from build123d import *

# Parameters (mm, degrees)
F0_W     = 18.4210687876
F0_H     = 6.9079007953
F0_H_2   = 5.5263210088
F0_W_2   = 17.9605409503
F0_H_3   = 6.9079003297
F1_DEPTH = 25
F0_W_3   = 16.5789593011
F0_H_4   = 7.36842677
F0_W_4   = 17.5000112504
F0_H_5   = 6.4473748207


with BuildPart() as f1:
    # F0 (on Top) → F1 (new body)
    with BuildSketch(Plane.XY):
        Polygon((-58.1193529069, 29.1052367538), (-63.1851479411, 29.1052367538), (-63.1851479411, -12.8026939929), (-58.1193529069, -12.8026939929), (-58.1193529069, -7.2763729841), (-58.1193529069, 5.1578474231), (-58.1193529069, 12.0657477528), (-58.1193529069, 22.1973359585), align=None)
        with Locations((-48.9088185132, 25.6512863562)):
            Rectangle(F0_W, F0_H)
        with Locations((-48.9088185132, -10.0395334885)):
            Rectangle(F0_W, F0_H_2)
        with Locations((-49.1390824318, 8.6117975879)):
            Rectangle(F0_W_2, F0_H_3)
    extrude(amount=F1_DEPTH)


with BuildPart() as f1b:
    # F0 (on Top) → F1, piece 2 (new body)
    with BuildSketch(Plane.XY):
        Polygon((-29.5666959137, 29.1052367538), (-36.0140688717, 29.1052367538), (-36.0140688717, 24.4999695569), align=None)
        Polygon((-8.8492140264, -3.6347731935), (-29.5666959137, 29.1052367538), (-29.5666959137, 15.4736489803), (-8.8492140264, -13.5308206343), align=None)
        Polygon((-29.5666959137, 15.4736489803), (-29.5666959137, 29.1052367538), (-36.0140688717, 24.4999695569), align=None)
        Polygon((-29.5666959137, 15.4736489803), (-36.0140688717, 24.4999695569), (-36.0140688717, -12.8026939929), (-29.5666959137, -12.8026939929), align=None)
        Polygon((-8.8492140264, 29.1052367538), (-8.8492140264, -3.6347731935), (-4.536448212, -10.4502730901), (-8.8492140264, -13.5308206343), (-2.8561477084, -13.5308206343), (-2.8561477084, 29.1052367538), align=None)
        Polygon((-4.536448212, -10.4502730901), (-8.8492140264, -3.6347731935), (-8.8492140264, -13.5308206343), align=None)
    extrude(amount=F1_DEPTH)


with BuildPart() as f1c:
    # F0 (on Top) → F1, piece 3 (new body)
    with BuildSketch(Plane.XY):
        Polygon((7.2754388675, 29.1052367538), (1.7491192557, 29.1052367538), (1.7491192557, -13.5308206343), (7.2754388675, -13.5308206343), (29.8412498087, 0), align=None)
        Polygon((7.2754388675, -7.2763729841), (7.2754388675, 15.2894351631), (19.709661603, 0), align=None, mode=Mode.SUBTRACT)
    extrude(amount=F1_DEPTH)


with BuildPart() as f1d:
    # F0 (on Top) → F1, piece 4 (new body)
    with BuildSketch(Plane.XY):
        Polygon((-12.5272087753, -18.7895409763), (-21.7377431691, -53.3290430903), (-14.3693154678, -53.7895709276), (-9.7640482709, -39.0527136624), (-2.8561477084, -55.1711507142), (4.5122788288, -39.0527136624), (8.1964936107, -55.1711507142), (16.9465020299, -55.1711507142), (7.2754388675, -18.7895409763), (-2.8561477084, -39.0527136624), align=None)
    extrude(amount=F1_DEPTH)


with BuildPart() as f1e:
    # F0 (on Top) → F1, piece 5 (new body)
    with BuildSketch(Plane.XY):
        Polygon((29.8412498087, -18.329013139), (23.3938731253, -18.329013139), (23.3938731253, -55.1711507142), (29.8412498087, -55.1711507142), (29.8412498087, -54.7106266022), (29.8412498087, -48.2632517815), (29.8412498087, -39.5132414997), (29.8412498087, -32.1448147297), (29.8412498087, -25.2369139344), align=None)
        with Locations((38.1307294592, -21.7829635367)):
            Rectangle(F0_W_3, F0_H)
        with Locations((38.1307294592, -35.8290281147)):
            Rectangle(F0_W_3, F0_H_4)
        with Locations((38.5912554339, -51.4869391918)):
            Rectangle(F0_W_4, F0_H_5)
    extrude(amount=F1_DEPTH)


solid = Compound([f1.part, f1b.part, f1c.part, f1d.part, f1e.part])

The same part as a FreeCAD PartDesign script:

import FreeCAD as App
import Part
import Sketcher

V = App.Vector
Q = App.Units.Quantity


def add_polygon(sketch, points):
    """Adds a closed chain of lines whose ends are joined by coincident constraints."""
    first, n = sketch.GeometryCount, len(points)
    for a, b in zip(points, points[1:] + points[:1]):
        sketch.addGeometry(Part.LineSegment(App.Vector(*a, 0), App.Vector(*b, 0)), False)
    for i in range(n):
        sketch.addConstraint(Sketcher.Constraint("Coincident", first + i, 2, first + (i + 1) % n, 1))

doc = App.newDocument("Part")
body = doc.addObject("PartDesign::Body", "Body")

# Sketch on XY plane
sketch1 = doc.addObject("Sketcher::SketchObject", "Sketch")
body.addObject(sketch1)
sketch1.AttachmentSupport = (doc.XY_Plane, [""])
sketch1.MapMode = "FlatFace"
add_polygon(sketch1, [(-58.119353, 29.105237), (-63.185148, 29.105237), (-63.185148, -12.802694), (-39.698284, -12.802694), (-39.698284, -7.276373), (-58.119353, -7.276373), (-58.119353, 5.157847), (-40.158812, 5.157847), (-40.158812, 12.065748), (-58.119353, 12.065748), (-58.119353, 22.197336), (-39.698284, 22.197336), (-39.698284, 29.105237)])  # lines 0-12
sketch1.addConstraint(Sketcher.Constraint("Horizontal", 0))
sketch1.addConstraint(Sketcher.Constraint("Vertical", 1))
sketch1.addConstraint(Sketcher.Constraint("Horizontal", 2))
sketch1.addConstraint(Sketcher.Constraint("Vertical", 3))
sketch1.addConstraint(Sketcher.Constraint("Horizontal", 4))
sketch1.addConstraint(Sketcher.Constraint("Vertical", 5))
sketch1.addConstraint(Sketcher.Constraint("Horizontal", 6))
sketch1.addConstraint(Sketcher.Constraint("Vertical", 7))
sketch1.addConstraint(Sketcher.Constraint("Horizontal", 8))
sketch1.addConstraint(Sketcher.Constraint("Vertical", 9))
sketch1.addConstraint(Sketcher.Constraint("Horizontal", 10))
sketch1.addConstraint(Sketcher.Constraint("Vertical", 11))
sketch1.addConstraint(Sketcher.Constraint("Horizontal", 12))
sketch1.addConstraint(Sketcher.Constraint("Vertical", 5, 2, 8, 2))
sketch1.addConstraint(Sketcher.Constraint("Vertical", 3, 2, 10, 2))
sketch1.addConstraint(Sketcher.Constraint("Vertical", 9, 2, 12, 2))
sketch1.addConstraint(Sketcher.Constraint("Equal", 7, 11))
sketch1.addConstraint(Sketcher.Constraint("DistanceY", 7, 1, 7, 2, Q("6.9079 mm")))
sketch1.addConstraint(Sketcher.Constraint("DistanceX", 4, 2, 4, 1, Q("18.421069 mm")))
sketch1.addConstraint(Sketcher.Constraint("DistanceX", 6, 1, 6, 2, Q("17.960541 mm")))
sketch1.addConstraint(Sketcher.Constraint("DistanceY", 1, 2, 1, 1, Q("41.907931 mm")))
sketch1.addConstraint(Sketcher.Constraint("DistanceY", 3, 1, 3, 2, Q("5.526321 mm")))
sketch1.addConstraint(Sketcher.Constraint("DistanceY", 5, 1, 5, 2, Q("12.43422 mm")))
sketch1.addConstraint(Sketcher.Constraint("DistanceX", 0, 2, 0, 1, Q("5.065795 mm")))
sketch1.addConstraint(Sketcher.Constraint("DistanceX", 6, 2, -1, 1, Q("40.158812 mm")))
sketch1.addConstraint(Sketcher.Constraint("DistanceY", -1, 1, 0, 2, Q("29.105237 mm")))
pad1 = doc.addObject("PartDesign::Pad", "Pad")
body.addObject(pad1)
pad1.Profile = sketch1
pad1.Length = 25
body2 = doc.addObject("PartDesign::Body", "Body001")

# Sketch on XY plane
sketch2 = doc.addObject("Sketcher::SketchObject", "Sketch001")
body2.addObject(sketch2)
sketch2.AttachmentSupport = (doc.getObject("XY_Plane001"), [""])
sketch2.MapMode = "FlatFace"
add_polygon(sketch2, [(-29.566696, 29.105237), (-36.014069, 29.105237), (-36.014069, -12.802694), (-29.566696, -12.802694), (-29.566696, 15.473649), (-8.849214, -13.530821), (-2.856148, -13.530821), (-2.856148, 29.105237), (-8.849214, 29.105237), (-8.849214, -3.634773)])  # lines 0-9
sketch2.addConstraint(Sketcher.Constraint("Horizontal", 0))
sketch2.addConstraint(Sketcher.Constraint("Vertical", 1))
sketch2.addConstraint(Sketcher.Constraint("Horizontal", 2))
sketch2.addConstraint(Sketcher.Constraint("Vertical", 3))
sketch2.addConstraint(Sketcher.Constraint("Horizontal", 5))
sketch2.addConstraint(Sketcher.Constraint("Vertical", 6))
sketch2.addConstraint(Sketcher.Constraint("Horizontal", 7))
sketch2.addConstraint(Sketcher.Constraint("Vertical", 8))
sketch2.addConstraint(Sketcher.Constraint("Horizontal", 0, 2, 6, 2))
sketch2.addConstraint(Sketcher.Constraint("Vertical", 4, 2, 7, 2))
sketch2.addConstraint(Sketcher.Constraint("Vertical", 3, 2, 9, 2))
sketch2.addConstraint(Sketcher.Constraint("Distance", 4, Q("35.643699 mm")))
sketch2.addConstraint(Sketcher.Constraint("DistanceY", 1, 2, 1, 1, Q("41.907931 mm")))
sketch2.addConstraint(Sketcher.Constraint("DistanceY", 8, 2, 8, 1, Q("32.74001 mm")))
sketch2.addConstraint(Sketcher.Constraint("Distance", 9, Q("38.74432 mm")))
sketch2.addConstraint(Sketcher.Constraint("DistanceX", 0, 2, 0, 1, Q("6.447373 mm")))
sketch2.addConstraint(Sketcher.Constraint("DistanceX", 5, 1, 5, 2, Q("5.993066 mm")))
sketch2.addConstraint(Sketcher.Constraint("DistanceY", 3, 1, 3, 2, Q("28.276343 mm")))
sketch2.addConstraint(Sketcher.Constraint("DistanceX", 0, 2, -1, 1, Q("36.014069 mm")))
sketch2.addConstraint(Sketcher.Constraint("DistanceY", -1, 1, 3, 2, Q("15.473649 mm")))
pad2 = doc.addObject("PartDesign::Pad", "Pad001")
body2.addObject(pad2)
pad2.Profile = sketch2
pad2.Length = 25
body3 = doc.addObject("PartDesign::Body", "Body002")

# Sketch on XY plane
sketch3 = doc.addObject("Sketcher::SketchObject", "Sketch002")
body3.addObject(sketch3)
sketch3.AttachmentSupport = (doc.getObject("XY_Plane002"), [""])
sketch3.MapMode = "FlatFace"
add_polygon(sketch3, [(7.275439, 29.105237), (1.749119, 29.105237), (1.749119, -13.530821), (7.275439, -13.530821), (29.84125, 0)])  # lines 0-4
add_polygon(sketch3, [(19.709662, 0), (7.275439, -7.276373), (7.275439, 15.289435)])  # lines 5-7
sketch3.addConstraint(Sketcher.Constraint("Horizontal", 0))
sketch3.addConstraint(Sketcher.Constraint("Vertical", 1))
sketch3.addConstraint(Sketcher.Constraint("Horizontal", 2))
sketch3.addConstraint(Sketcher.Constraint("Vertical", 6))
sketch3.addConstraint(Sketcher.Constraint("PointOnObject", 3, 2, -1))
sketch3.addConstraint(Sketcher.Constraint("PointOnObject", 7, 2, -1))
sketch3.addConstraint(Sketcher.Constraint("Vertical", 2, 2, 4, 2))
sketch3.addConstraint(Sketcher.Constraint("Vertical", 4, 2, 5, 2))
sketch3.addConstraint(Sketcher.Constraint("DistanceX", 0, 2, 0, 1, Q("5.52632 mm")))
sketch3.addConstraint(Sketcher.Constraint("DistanceY", 6, 1, 6, 2, Q("22.565808 mm")))
sketch3.addConstraint(Sketcher.Constraint("DistanceY", 6, 2, 4, 2, Q("13.815802 mm")))
sketch3.addConstraint(Sketcher.Constraint("DistanceY", 1, 2, 1, 1, Q("42.636057 mm")))
sketch3.addConstraint(Sketcher.Constraint("DistanceX", -1, 1, 0, 2, Q("1.749119 mm")))
sketch3.addConstraint(Sketcher.Constraint("DistanceY", 1, 2, -1, 1, Q("13.530821 mm")))
sketch3.addConstraint(Sketcher.Constraint("DistanceX", -1, 1, 3, 2, Q("29.84125 mm")))
sketch3.addConstraint(Sketcher.Constraint("DistanceX", -1, 1, 7, 2, Q("19.709662 mm")))
pad3 = doc.addObject("PartDesign::Pad", "Pad002")
body3.addObject(pad3)
pad3.Profile = sketch3
pad3.Length = 25
body4 = doc.addObject("PartDesign::Body", "Body003")

# Sketch on XY plane
sketch4 = doc.addObject("Sketcher::SketchObject", "Sketch003")
body4.addObject(sketch4)
sketch4.AttachmentSupport = (doc.getObject("XY_Plane003"), [""])
sketch4.MapMode = "FlatFace"
add_polygon(sketch4, [(-12.527209, -18.789541), (-21.737743, -53.329043), (-14.369315, -53.789571), (-9.764048, -39.052714), (-2.856148, -55.171151), (4.512279, -39.052714), (8.196494, -55.171151), (16.946502, -55.171151), (7.275439, -18.789541), (-2.856148, -39.052714)])  # lines 0-9
sketch4.addConstraint(Sketcher.Constraint("Horizontal", 6))
sketch4.addConstraint(Sketcher.Constraint("Horizontal", 2, 2, 4, 2))
sketch4.addConstraint(Sketcher.Constraint("Horizontal", 3, 2, 5, 2))
sketch4.addConstraint(Sketcher.Constraint("Horizontal", 4, 2, 8, 2))
sketch4.addConstraint(Sketcher.Constraint("Horizontal", 7, 2, 9, 2))
sketch4.addConstraint(Sketcher.Constraint("Vertical", 3, 2, 8, 2))
sketch4.addConstraint(Sketcher.Constraint("DistanceX", 6, 1, 6, 2, Q("8.750008 mm")))
sketch4.addConstraint(Sketcher.Constraint("DistanceX", 2, 2, 3, 2, Q("6.907901 mm")))
sketch4.addConstraint(Sketcher.Constraint("Distance", 2, Q("15.439671 mm")))
sketch4.addConstraint(Sketcher.Constraint("Distance", 5, Q("16.53413 mm")))
sketch4.addConstraint(Sketcher.Constraint("Distance", 9, Q("22.452741 mm")))
sketch4.addConstraint(Sketcher.Constraint("DistanceY", 1, 2, -1, 1, Q("53.789571 mm")))
sketch4.addConstraint(Sketcher.Constraint("DistanceX", 2, 2, -1, 1, Q("9.764048 mm")))
sketch4.addConstraint(Sketcher.Constraint("DistanceY", 3, 2, -1, 1, Q("55.171151 mm")))
sketch4.addConstraint(Sketcher.Constraint("DistanceX", -1, 1, 4, 2, Q("4.512279 mm")))
sketch4.addConstraint(Sketcher.Constraint("DistanceX", -1, 1, 7, 2, Q("7.275439 mm")))
sketch4.addConstraint(Sketcher.Constraint("DistanceY", 7, 2, -1, 1, Q("18.789541 mm")))
sketch4.addConstraint(Sketcher.Constraint("DistanceX", 9, 2, -1, 1, Q("12.527209 mm")))
sketch4.addConstraint(Sketcher.Constraint("DistanceY", 0, 2, 2, 2, Q("14.276329 mm")))
sketch4.addConstraint(Sketcher.Constraint("DistanceX", 0, 2, 4, 2, Q("26.250022 mm")))
pad4 = doc.addObject("PartDesign::Pad", "Pad003")
body4.addObject(pad4)
pad4.Profile = sketch4
pad4.Length = 25
body5 = doc.addObject("PartDesign::Body", "Body004")

# Sketch on XY plane
sketch5 = doc.addObject("Sketcher::SketchObject", "Sketch004")
body5.addObject(sketch5)
sketch5.AttachmentSupport = (doc.getObject("XY_Plane004"), [""])
sketch5.MapMode = "FlatFace"
add_polygon(sketch5, [(29.84125, -18.329013), (23.393873, -18.329013), (23.393873, -55.171151), (29.84125, -55.171151), (29.84125, -54.710627), (47.341261, -54.710627), (47.341261, -48.263252), (29.84125, -48.263252), (29.84125, -39.513241), (46.420209, -39.513241), (46.420209, -32.144815), (29.84125, -32.144815), (29.84125, -25.236914), (46.420209, -25.236914), (46.420209, -18.329013)])  # lines 0-14
sketch5.addConstraint(Sketcher.Constraint("Horizontal", 0))
sketch5.addConstraint(Sketcher.Constraint("Vertical", 1))
sketch5.addConstraint(Sketcher.Constraint("Horizontal", 2))
sketch5.addConstraint(Sketcher.Constraint("Vertical", 3))
sketch5.addConstraint(Sketcher.Constraint("Horizontal", 4))
sketch5.addConstraint(Sketcher.Constraint("Vertical", 5))
sketch5.addConstraint(Sketcher.Constraint("Horizontal", 6))
sketch5.addConstraint(Sketcher.Constraint("Vertical", 7))
sketch5.addConstraint(Sketcher.Constraint("Horizontal", 8))
sketch5.addConstraint(Sketcher.Constraint("Vertical", 9))
sketch5.addConstraint(Sketcher.Constraint("Horizontal", 10))
sketch5.addConstraint(Sketcher.Constraint("Vertical", 11))
sketch5.addConstraint(Sketcher.Constraint("Horizontal", 12))
sketch5.addConstraint(Sketcher.Constraint("Vertical", 13))
sketch5.addConstraint(Sketcher.Constraint("Horizontal", 14))
sketch5.addConstraint(Sketcher.Constraint("Vertical", 3, 2, 6, 2))
sketch5.addConstraint(Sketcher.Constraint("Vertical", 7, 2, 10, 2))
sketch5.addConstraint(Sketcher.Constraint("Vertical", 9, 2, 12, 2))
sketch5.addConstraint(Sketcher.Constraint("Vertical", 11, 2, 14, 2))
sketch5.addConstraint(Sketcher.Constraint("Equal", 2, 5))
sketch5.addConstraint(Sketcher.Constraint("Equal", 11, 13))
sketch5.addConstraint(Sketcher.Constraint("DistanceY", 11, 1, 11, 2, Q("6.907901 mm")))
sketch5.addConstraint(Sketcher.Constraint("DistanceX", 4, 1, 4, 2, Q("17.500011 mm")))
sketch5.addConstraint(Sketcher.Constraint("DistanceX", 8, 1, 8, 2, Q("16.578959 mm")))
sketch5.addConstraint(Sketcher.Constraint("DistanceY", 7, 1, 7, 2, Q("8.75001 mm")))
sketch5.addConstraint(Sketcher.Constraint("DistanceY", 2, 2, 5, 2, Q("6.907899 mm")))
sketch5.addConstraint(Sketcher.Constraint("DistanceX", 0, 2, 0, 1, Q("6.447377 mm")))
sketch5.addConstraint(Sketcher.Constraint("DistanceY", 1, 2, 1, 1, Q("36.842138 mm")))
sketch5.addConstraint(Sketcher.Constraint("DistanceY", 1, 2, -1, 1, Q("55.171151 mm")))
sketch5.addConstraint(Sketcher.Constraint("DistanceX", -1, 1, 2, 2, Q("29.84125 mm")))
pad5 = doc.addObject("PartDesign::Pad", "Pad004")
body5.addObject(pad5)
pad5.Profile = sketch5
pad5.Length = 25

doc.recompute()
